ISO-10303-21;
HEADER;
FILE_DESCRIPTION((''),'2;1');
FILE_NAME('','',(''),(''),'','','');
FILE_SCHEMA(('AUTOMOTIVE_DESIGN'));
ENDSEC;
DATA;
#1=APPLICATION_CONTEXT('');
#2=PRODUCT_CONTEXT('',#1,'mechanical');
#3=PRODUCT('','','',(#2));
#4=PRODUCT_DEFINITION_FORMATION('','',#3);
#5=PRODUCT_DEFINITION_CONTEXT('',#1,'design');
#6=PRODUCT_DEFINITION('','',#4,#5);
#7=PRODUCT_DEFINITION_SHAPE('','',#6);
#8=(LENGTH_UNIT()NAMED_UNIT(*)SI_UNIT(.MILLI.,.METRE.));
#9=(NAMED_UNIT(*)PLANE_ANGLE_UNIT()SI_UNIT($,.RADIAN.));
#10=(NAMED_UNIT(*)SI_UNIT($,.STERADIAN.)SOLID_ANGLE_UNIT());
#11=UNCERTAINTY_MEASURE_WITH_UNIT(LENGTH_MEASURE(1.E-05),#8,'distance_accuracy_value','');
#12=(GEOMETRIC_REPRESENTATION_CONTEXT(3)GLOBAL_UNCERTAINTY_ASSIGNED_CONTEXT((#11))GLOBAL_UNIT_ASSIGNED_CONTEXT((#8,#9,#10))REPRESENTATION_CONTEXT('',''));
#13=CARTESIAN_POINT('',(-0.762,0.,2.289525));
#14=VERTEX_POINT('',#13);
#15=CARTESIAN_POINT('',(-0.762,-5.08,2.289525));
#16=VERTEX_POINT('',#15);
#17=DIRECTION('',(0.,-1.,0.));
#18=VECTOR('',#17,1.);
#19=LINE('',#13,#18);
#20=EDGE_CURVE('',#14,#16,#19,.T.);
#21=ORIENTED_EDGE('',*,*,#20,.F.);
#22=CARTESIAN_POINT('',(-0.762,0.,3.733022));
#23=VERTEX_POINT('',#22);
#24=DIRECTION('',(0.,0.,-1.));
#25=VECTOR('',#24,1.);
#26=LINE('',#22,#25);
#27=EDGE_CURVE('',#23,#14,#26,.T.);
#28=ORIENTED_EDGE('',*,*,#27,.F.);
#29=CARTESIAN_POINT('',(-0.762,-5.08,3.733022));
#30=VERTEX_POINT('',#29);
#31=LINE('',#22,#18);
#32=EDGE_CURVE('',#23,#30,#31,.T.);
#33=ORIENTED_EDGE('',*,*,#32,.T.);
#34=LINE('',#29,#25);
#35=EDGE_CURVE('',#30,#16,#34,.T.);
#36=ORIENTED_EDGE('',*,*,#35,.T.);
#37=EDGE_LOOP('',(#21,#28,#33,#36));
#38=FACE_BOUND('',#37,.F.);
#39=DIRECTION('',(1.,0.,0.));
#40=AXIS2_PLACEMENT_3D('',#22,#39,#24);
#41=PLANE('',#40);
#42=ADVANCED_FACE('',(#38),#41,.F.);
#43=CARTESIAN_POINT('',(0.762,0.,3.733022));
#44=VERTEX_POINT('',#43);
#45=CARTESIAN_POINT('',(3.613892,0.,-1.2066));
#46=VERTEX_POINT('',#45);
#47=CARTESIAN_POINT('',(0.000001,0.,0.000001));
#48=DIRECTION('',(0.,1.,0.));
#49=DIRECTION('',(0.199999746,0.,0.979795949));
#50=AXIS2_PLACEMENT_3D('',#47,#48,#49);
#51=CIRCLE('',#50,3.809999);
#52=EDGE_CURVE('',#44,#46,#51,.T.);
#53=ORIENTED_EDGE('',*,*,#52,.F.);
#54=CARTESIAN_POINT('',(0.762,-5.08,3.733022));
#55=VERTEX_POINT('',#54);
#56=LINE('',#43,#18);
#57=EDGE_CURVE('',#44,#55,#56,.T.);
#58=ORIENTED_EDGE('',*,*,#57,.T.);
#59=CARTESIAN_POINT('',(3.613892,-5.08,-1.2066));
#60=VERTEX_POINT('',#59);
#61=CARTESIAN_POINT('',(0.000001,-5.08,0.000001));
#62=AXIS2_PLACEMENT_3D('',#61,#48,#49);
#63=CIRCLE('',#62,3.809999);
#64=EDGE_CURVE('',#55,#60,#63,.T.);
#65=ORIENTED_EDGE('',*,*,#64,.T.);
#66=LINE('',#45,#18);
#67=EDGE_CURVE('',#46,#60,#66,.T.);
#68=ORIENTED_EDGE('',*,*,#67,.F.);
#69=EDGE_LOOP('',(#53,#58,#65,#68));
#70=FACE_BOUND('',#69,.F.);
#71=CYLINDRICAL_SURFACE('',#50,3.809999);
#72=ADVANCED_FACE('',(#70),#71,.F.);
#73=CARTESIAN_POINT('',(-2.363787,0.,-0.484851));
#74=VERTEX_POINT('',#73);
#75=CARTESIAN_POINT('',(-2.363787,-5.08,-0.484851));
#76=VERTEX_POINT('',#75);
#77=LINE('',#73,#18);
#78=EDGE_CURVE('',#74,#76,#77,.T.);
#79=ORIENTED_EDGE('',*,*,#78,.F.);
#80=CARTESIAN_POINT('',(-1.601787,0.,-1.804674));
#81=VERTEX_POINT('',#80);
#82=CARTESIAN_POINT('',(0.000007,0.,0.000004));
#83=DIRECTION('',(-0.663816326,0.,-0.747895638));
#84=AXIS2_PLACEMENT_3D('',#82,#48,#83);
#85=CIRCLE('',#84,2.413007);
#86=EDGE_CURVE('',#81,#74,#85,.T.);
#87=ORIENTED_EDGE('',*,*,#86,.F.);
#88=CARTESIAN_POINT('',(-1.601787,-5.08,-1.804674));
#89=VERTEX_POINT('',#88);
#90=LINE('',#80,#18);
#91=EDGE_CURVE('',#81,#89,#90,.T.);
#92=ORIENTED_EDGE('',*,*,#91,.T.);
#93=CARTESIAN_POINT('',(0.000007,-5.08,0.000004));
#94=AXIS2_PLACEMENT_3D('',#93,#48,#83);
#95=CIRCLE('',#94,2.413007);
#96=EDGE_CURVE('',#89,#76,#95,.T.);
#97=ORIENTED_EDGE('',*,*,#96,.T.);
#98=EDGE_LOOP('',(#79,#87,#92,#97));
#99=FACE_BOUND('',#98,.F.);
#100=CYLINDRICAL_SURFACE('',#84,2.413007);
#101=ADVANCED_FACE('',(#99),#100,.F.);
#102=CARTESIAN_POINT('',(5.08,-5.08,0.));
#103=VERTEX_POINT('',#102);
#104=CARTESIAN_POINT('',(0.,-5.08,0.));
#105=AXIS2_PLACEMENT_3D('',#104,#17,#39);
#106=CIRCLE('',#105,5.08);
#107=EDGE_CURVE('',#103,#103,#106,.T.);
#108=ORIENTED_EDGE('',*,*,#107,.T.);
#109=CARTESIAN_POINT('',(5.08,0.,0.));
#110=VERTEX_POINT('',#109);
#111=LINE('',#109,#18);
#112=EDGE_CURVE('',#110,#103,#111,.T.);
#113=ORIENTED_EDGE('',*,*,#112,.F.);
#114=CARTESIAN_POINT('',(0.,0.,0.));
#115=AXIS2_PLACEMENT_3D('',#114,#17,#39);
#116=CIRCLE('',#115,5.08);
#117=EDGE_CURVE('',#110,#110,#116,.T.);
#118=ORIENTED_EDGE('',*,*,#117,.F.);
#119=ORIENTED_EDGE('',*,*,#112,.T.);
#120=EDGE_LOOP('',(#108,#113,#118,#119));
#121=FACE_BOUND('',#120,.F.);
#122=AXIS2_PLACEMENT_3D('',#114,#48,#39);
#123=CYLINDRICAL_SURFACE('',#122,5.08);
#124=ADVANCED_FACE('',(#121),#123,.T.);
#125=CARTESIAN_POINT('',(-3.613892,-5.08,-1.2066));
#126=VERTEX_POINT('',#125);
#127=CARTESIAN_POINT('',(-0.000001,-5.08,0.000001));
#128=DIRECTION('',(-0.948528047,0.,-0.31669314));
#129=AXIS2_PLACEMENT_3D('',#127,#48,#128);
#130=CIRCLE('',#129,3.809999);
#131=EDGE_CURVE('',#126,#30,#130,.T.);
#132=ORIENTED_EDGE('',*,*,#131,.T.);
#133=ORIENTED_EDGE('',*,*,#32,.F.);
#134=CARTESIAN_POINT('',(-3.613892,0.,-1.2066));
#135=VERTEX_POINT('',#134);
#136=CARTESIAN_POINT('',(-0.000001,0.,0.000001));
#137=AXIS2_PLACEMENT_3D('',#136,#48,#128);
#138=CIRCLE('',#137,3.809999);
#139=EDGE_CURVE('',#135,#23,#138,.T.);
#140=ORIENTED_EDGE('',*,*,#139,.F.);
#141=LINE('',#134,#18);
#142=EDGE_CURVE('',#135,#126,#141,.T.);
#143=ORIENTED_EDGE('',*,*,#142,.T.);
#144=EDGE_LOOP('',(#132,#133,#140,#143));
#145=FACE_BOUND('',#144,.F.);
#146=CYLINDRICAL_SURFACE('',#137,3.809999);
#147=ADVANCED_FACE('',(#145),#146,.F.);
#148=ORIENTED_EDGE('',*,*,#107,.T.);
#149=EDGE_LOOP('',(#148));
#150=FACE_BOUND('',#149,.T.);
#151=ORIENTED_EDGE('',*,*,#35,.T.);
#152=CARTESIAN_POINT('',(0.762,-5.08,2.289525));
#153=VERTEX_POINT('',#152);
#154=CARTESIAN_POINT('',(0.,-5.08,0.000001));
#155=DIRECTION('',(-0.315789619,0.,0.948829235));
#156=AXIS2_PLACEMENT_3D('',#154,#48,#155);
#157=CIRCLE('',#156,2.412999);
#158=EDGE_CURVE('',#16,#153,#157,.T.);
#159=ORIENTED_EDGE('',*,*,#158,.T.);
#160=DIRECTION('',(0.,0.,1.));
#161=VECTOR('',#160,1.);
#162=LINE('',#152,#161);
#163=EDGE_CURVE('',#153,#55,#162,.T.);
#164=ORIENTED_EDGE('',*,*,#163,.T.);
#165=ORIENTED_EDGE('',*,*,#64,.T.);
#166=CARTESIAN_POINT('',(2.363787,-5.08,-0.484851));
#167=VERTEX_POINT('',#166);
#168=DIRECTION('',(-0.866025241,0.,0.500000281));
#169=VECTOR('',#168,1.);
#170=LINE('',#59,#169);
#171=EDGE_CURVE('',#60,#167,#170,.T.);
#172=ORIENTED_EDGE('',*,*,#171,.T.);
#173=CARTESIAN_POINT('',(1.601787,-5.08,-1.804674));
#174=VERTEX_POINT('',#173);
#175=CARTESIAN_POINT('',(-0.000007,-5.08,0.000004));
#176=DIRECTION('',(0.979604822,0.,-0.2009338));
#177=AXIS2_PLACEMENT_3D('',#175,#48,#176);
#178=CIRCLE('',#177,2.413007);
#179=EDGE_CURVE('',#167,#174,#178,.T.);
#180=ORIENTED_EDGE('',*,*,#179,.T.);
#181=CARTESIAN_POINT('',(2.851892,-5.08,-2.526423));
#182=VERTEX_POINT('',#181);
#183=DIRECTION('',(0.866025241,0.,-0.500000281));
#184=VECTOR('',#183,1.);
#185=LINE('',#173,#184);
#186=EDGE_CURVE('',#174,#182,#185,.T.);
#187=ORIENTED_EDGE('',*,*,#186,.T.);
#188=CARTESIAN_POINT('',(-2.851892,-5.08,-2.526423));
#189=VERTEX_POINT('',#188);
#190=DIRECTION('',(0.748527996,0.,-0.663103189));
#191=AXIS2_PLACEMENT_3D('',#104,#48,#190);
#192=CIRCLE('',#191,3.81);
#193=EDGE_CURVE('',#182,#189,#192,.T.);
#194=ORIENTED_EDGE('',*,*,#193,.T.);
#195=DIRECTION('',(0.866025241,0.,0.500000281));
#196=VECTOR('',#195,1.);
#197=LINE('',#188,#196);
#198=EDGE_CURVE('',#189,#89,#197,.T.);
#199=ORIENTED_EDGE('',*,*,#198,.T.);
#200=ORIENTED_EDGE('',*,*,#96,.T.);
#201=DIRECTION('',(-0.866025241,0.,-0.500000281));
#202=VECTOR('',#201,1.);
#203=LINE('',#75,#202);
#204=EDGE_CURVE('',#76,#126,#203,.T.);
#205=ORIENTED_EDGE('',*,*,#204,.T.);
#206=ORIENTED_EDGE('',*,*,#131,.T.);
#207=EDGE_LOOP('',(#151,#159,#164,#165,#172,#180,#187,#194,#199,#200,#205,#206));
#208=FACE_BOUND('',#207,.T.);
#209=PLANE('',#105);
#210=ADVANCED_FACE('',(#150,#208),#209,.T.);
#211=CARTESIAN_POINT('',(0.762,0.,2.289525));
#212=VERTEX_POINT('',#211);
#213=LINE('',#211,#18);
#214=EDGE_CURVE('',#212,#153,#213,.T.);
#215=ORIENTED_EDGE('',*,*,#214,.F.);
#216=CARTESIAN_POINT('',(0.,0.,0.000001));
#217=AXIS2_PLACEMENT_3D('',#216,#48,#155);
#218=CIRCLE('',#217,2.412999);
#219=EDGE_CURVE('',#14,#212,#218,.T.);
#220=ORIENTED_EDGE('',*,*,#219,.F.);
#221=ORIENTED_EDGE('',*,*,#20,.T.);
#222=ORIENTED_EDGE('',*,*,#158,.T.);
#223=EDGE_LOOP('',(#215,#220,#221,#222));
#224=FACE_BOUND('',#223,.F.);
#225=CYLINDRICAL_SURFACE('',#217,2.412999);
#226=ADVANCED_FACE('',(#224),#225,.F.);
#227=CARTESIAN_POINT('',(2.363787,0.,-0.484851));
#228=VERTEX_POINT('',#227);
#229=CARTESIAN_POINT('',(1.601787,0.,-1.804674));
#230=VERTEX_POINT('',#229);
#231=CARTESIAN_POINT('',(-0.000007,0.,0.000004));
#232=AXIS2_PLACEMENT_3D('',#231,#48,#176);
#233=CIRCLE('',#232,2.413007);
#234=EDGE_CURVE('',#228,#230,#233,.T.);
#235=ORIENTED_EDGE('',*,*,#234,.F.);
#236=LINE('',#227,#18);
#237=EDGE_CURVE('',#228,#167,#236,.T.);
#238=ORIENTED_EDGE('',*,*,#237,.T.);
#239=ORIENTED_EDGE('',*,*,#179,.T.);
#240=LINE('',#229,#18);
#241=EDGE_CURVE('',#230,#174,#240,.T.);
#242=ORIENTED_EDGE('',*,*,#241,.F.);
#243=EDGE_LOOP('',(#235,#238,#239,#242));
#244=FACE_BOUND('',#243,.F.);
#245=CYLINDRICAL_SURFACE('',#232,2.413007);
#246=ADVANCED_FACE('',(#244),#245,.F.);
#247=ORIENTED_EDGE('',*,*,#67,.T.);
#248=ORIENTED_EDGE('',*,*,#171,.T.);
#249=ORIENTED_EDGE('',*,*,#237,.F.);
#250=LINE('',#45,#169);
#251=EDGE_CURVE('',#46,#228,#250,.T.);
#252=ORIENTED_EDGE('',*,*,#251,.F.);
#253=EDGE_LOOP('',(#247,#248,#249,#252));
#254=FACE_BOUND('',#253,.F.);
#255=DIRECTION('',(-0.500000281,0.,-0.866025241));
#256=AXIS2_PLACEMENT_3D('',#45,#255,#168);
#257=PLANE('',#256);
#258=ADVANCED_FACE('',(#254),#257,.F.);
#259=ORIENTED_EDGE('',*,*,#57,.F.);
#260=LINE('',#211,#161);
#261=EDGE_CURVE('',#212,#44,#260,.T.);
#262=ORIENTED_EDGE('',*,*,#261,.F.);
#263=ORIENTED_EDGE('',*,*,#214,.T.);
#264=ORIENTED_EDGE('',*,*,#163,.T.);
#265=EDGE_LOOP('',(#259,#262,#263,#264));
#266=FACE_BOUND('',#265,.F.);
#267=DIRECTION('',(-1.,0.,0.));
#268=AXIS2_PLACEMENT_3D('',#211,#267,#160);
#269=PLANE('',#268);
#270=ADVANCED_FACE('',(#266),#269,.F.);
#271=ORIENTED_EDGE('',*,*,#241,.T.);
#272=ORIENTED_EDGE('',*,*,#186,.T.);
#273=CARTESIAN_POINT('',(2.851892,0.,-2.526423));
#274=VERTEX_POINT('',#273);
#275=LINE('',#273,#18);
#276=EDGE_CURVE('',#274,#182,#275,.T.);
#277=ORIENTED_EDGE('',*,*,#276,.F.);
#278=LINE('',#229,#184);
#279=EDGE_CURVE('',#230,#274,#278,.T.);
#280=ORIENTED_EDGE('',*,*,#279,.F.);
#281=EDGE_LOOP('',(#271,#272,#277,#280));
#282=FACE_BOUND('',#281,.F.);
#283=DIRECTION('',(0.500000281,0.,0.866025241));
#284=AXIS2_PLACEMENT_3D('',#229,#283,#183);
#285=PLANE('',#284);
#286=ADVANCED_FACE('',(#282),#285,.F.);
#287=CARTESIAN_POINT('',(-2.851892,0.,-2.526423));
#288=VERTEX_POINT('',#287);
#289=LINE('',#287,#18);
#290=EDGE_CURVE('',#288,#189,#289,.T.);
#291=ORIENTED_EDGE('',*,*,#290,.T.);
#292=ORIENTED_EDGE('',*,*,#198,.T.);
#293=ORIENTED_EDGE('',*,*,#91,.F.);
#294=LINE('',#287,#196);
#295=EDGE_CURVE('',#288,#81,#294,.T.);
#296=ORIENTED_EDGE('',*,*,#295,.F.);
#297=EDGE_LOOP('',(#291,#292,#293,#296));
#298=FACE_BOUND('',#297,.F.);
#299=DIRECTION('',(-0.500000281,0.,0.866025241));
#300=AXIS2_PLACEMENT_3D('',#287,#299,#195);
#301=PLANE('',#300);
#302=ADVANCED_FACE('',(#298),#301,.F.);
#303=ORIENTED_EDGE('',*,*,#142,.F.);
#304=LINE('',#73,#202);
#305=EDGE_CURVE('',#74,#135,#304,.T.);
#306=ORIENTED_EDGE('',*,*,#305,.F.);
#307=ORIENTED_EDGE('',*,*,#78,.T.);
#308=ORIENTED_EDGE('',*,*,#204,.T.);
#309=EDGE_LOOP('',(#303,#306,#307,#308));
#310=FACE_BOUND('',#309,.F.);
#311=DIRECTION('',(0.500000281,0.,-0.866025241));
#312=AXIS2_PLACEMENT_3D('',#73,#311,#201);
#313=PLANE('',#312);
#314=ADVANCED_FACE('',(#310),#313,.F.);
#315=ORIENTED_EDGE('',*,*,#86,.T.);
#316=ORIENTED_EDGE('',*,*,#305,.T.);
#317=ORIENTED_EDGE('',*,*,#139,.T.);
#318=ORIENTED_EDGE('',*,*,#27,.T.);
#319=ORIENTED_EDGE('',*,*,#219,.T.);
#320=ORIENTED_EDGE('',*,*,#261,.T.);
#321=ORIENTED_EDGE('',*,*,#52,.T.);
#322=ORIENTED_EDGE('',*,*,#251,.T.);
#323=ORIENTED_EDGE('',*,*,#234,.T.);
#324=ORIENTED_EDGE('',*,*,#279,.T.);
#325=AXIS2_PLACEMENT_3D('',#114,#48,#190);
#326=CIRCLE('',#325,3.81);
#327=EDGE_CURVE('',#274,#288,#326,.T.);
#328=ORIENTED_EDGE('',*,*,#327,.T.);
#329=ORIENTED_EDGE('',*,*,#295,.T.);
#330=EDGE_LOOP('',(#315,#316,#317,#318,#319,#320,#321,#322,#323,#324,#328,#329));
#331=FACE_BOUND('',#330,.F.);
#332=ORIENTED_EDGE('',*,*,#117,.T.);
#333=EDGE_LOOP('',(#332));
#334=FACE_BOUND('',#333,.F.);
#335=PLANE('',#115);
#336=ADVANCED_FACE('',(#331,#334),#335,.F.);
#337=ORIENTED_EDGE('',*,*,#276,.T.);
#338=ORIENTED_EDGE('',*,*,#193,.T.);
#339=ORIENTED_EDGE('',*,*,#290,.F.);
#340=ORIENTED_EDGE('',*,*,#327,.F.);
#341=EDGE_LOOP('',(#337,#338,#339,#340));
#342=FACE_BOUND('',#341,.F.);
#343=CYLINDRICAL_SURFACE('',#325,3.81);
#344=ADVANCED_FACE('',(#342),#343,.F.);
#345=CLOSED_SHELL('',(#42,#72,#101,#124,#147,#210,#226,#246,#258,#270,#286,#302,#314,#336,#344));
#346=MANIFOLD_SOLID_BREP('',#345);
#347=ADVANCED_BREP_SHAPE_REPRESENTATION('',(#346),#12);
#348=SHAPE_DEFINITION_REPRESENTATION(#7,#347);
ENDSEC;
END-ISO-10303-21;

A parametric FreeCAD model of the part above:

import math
import FreeCAD as App
import Part
import Sketcher
from FreeCAD import Vector
Q = App.Units.Quantity

doc = App.newDocument("Part")
body = doc.addObject("PartDesign::Body", "Body")

# Sketch on XZ plane
sketch1 = body.newObject("Sketcher::SketchObject", "Sketch")
sketch1.AttachmentSupport = (doc.getObject("XZ_Plane"), [""])
sketch1.MapMode = "FlatFace"
sketch1.addGeometry([
    Part.Circle(Vector(0, 0, 0), Vector(0, 0, 1), 5.1),  # 0
    Part.LineSegment(Vector(-0.8, 3.7, 0), Vector(-0.8, 2.3, 0)),  # 1
    Part.ArcOfCircle(Part.Circle(Vector(0, 0, 0), Vector(0, 0, 1), 2.4), math.radians(72), math.radians(108)),  # 2
    Part.LineSegment(Vector(0.8, 2.3, 0), Vector(0.8, 3.7, 0)),  # 3
    Part.ArcOfCircle(Part.Circle(Vector(0, 0, 0), Vector(0, 0, 1), 3.8), math.radians(-18), math.radians(78)),  # 4
    Part.LineSegment(Vector(3.6, -1.2, 0), Vector(2.4, -0.5, 0)),  # 5
    Part.ArcOfCircle(Part.Circle(Vector(0, 0, 0), Vector(0, 0, 1), 2.4), math.radians(-48), math.radians(-12)),  # 6
    Part.LineSegment(Vector(1.6, -1.8, 0), Vector(2.9, -2.5, 0)),  # 7
    Part.ArcOfCircle(Part.Circle(Vector(0, 0, 0), Vector(0, 0, 1), 3.8), math.radians(-138), math.radians(-42)),  # 8
    Part.LineSegment(Vector(-2.9, -2.5, 0), Vector(-1.6, -1.8, 0)),  # 9
    Part.ArcOfCircle(Part.Circle(Vector(0, 0, 0), Vector(0, 0, 1), 2.4), math.radians(-168), math.radians(-132)),  # 10
    Part.LineSegment(Vector(-2.4, -0.5, 0), Vector(-3.6, -1.2, 0)),  # 11
    Part.ArcOfCircle(Part.Circle(Vector(0, 0, 0), Vector(0, 0, 1), 3.8), math.radians(102), math.radians(198)),  # 12
], False)
sketch1.addConstraint([
    Sketcher.Constraint("Coincident", 1, 2, 2, 2),
    Sketcher.Constraint("Coincident", 2, 1, 3, 1),
    Sketcher.Constraint("Coincident", 3, 2, 4, 2),
    Sketcher.Constraint("Coincident", 4, 1, 5, 1),
    Sketcher.Constraint("Coincident", 5, 2, 6, 2),
    Sketcher.Constraint("Coincident", 6, 1, 7, 1),
    Sketcher.Constraint("Coincident", 7, 2, 8, 2),
    Sketcher.Constraint("Coincident", 8, 1, 9, 1),
    Sketcher.Constraint("Coincident", 9, 2, 10, 2),
    Sketcher.Constraint("Coincident", 10, 1, 11, 1),
    Sketcher.Constraint("Coincident", 11, 2, 12, 2),
    Sketcher.Constraint("Coincident", 12, 1, 1, 1),
    Sketcher.Constraint("Vertical", 1),
    Sketcher.Constraint("Vertical", 3),
    Sketcher.Constraint("Coincident", 0, 3, -1, 1),
    Sketcher.Constraint("Coincident", 2, 3, -1, 1),
    Sketcher.Constraint("Coincident", 4, 3, -1, 1),
    Sketcher.Constraint("Coincident", 6, 3, -1, 1),
    Sketcher.Constraint("Coincident", 8, 3, -1, 1),
    Sketcher.Constraint("Coincident", 10, 3, -1, 1),
    Sketcher.Constraint("Coincident", 12, 3, -1, 1),
    Sketcher.Constraint("Equal", 4, 8),
    Sketcher.Constraint("Equal", 6, 10),
    Sketcher.Constraint("Equal", 8, 12),
    Sketcher.Constraint("Parallel", 5, 7),
    Sketcher.Constraint("Parallel", 9, 11),
    Sketcher.Constraint("Horizontal", 1, 2, 2, 1),
    Sketcher.Constraint("Horizontal", 7, 2, 8, 1),
    Sketcher.Constraint("Horizontal", 6, 1, 9, 2),
    Sketcher.Constraint("Horizontal", 5, 2, 10, 1),
    Sketcher.Constraint("Equal", 5, 7),
    Sketcher.Constraint("Diameter", 0, Q("0.4 in")),
    Sketcher.Constraint("Radius", 4, Q("0.15 in")),
    Sketcher.Constraint("Angle", 5, Q("149.999981 deg")),
    Sketcher.Constraint("Radius", 2, Q("0.095 in")),
    Sketcher.Constraint("DistanceX", 1, 2, -1, 1, Q("0.03 in")),
    Sketcher.Constraint("DistanceX", 6, 1, 5, 2, Q("0.03 in")),
    Sketcher.Constraint("Radius", 6, 2.413007),
])
pad1 = body.newObject("PartDesign::Pad", "Pad")
pad1.Profile = sketch1
pad1.Length = Q("0.2 in")

doc.recompute()
